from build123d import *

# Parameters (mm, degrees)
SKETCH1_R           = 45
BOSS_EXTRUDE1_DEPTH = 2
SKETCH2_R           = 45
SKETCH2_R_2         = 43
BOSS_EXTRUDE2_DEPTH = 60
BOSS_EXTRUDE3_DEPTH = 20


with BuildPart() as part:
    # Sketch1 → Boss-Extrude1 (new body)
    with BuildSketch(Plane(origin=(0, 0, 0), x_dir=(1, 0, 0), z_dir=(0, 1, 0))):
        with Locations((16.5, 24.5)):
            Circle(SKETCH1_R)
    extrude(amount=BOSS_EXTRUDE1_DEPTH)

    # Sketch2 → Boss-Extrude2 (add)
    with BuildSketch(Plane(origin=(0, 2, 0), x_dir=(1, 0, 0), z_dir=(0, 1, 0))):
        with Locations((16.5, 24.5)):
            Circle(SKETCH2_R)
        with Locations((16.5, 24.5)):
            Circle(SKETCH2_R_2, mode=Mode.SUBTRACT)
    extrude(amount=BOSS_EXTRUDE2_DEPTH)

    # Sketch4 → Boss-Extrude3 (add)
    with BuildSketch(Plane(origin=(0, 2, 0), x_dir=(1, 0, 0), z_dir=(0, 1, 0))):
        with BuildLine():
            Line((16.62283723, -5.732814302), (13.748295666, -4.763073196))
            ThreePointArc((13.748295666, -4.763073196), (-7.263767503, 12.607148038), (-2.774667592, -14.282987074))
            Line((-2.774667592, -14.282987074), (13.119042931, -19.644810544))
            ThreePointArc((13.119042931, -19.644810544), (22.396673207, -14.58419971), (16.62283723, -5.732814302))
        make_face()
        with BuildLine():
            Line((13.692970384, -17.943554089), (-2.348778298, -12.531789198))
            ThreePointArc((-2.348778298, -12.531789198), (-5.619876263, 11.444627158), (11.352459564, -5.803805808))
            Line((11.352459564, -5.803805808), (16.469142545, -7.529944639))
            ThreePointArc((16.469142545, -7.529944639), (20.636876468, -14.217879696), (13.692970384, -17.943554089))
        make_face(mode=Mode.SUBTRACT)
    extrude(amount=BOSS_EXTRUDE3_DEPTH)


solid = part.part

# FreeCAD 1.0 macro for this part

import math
import FreeCAD as App
import Part
import Sketcher
from FreeCAD import Vector

doc = App.newDocument("Part")
body = doc.addObject("PartDesign::Body", "Body")

# Sketch on XZ plane
sketch1 = body.newObject("Sketcher::SketchObject", "Sketch")
sketch1.AttachmentSupport = (doc.getObject("XZ_Plane"), [""])
sketch1.MapMode = "FlatFace"
sketch1.addGeometry(Part.Circle(Vector(16, -24, 0), Vector(0, 0, 1), 45), False)
sketch1.addConstraint(Sketcher.Constraint("Diameter", 0, 90.0))
sketch1.addConstraint(Sketcher.Constraint("DistanceX", -1, 1, 0, 3, 16.5))
sketch1.addConstraint(Sketcher.Constraint("DistanceY", 0, 3, -1, 1, 24.5))
pad1 = body.newObject("PartDesign::Pad", "Pad")
pad1.Profile = sketch1
pad1.Length = 2
pad1.Reversed = True

# Sketch on XZ plane
sketch2 = body.newObject("Sketcher::SketchObject", "Sketch001")
sketch2.AttachmentSupport = (doc.getObject("XZ_Plane"), [""])
sketch2.MapMode = "FlatFace"
sketch2.AttachmentOffset = App.Placement(Vector(0, 0, -2), App.Rotation())
sketch2.addGeometry(Part.Circle(Vector(16, -24, 0), Vector(0, 0, 1), 45), False)
sketch2.addGeometry(Part.Circle(Vector(16, -24, 0), Vector(0, 0, 1), 43), False)
sketch2.addConstraint(Sketcher.Constraint("Coincident", 1, 3, 0, 3))
sketch2.addConstraint(Sketcher.Constraint("Diameter", 0, 90.0))
sketch2.addConstraint(Sketcher.Constraint("Diameter", 1, 86.0))
sketch2.addConstraint(Sketcher.Constraint("DistanceX", -1, 1, 0, 3, 16.5))
sketch2.addConstraint(Sketcher.Constraint("DistanceY", 0, 3, -1, 1, 24.5))
pad2 = body.newObject("PartDesign::Pad", "Pad001")
pad2.Profile = sketch2
pad2.Length = 60
pad2.Reversed = True

# Sketch on XZ plane
sketch3 = body.newObject("Sketcher::SketchObject", "Sketch002")
sketch3.AttachmentSupport = (doc.getObject("XZ_Plane"), [""])
sketch3.MapMode = "FlatFace"
sketch3.AttachmentOffset = App.Placement(Vector(0, 0, -2), App.Rotation())
sketch3.addGeometry(Part.LineSegment(Vector(16.6, 5.7, 0), Vector(13.7, 4.8, 0)), False)
sketch3.addGeometry(Part.ArcOfCircle(Part.Circle(Vector(0, 0, 0), Vector(0, 0, 1), 14.6), math.radians(101), math.radians(379)), False)
sketch3.addGeometry(Part.LineSegment(Vector(-2.8, 14.3, 0), Vector(13.1, 19.6, 0)), False)
sketch3.addGeometry(Part.ArcOfCircle(Part.Circle(Vector(15.4, 12.8, 0), Vector(0, 0, 1), 7.2), math.radians(-80), math.radians(109)), False)
sketch3.addGeometry(Part.ArcOfCircle(Part.Circle(Vector(15.4, 12.8, 0), Vector(0, 0, 1), 5.4), math.radians(-79), math.radians(109)), False)
sketch3.addGeometry(Part.LineSegment(Vector(13.7, 17.9, 0), Vector(-2.3, 12.5, 0)), False)
sketch3.addGeometry(Part.ArcOfCircle(Part.Circle(Vector(0, 0, 0), Vector(0, 0, 1), 12.8), math.radians(101), math.radians(387)), False)
sketch3.addGeometry(Part.LineSegment(Vector(11.4, 5.8, 0), Vector(16.5, 7.5, 0)), False)
sketch3.addConstraint(Sketcher.Constraint("Coincident", 0, 2, 1, 2))
sketch3.addConstraint(Sketcher.Constraint("Coincident", 1, 1, 2, 1))
sketch3.addConstraint(Sketcher.Constraint("Tangent", 2, 2, 3, 2))
sketch3.addConstraint(Sketcher.Constraint("Coincident", 3, 1, 0, 1))
sketch3.addConstraint(Sketcher.Constraint("Tangent", 4, 2, 5, 1))
sketch3.addConstraint(Sketcher.Constraint("Coincident", 5, 2, 6, 1))
sketch3.addConstraint(Sketcher.Constraint("Coincident", 6, 2, 7, 1))
sketch3.addConstraint(Sketcher.Constraint("Coincident", 7, 2, 4, 1))
sketch3.addConstraint(Sketcher.Constraint("Coincident", 1, 3, -1, 1))
sketch3.addConstraint(Sketcher.Constraint("Coincident", 6, 3, -1, 1))
sketch3.addConstraint(Sketcher.Constraint("Coincident", 4, 3, 3, 3))
sketch3.addConstraint(Sketcher.Constraint("Parallel", 0, 2))
sketch3.addConstraint(Sketcher.Constraint("Parallel", 2, 5))
sketch3.addConstraint(Sketcher.Constraint("Parallel", 5, 7))
sketch3.addConstraint(Sketcher.Constraint("Radius", 4, 5.4))
sketch3.addConstraint(Sketcher.Constraint("Radius", 1, 14.55))
sketch3.addConstraint(Sketcher.Constraint("Radius", 6, 12.75))
sketch3.addConstraint(Sketcher.Constraint("Distance", 7, 5.4))
sketch3.addConstraint(Sketcher.Constraint("Distance", 5, 16.93))
sketch3.addConstraint(Sketcher.Constraint("Radius", 3, 7.195457))
sketch3.addConstraint(Sketcher.Constraint("Distance", 0, 3.033708))
sketch3.addConstraint(Sketcher.Constraint("DistanceX", -1, 1, 3, 3, 15.419109))
sketch3.addConstraint(Sketcher.Constraint("DistanceY", -1, 1, 3, 3, 12.826871))
pad3 = body.newObject("PartDesign::Pad", "Pad002")
pad3.Profile = sketch3
pad3.Length = 20
pad3.Reversed = True

doc.recompute()
